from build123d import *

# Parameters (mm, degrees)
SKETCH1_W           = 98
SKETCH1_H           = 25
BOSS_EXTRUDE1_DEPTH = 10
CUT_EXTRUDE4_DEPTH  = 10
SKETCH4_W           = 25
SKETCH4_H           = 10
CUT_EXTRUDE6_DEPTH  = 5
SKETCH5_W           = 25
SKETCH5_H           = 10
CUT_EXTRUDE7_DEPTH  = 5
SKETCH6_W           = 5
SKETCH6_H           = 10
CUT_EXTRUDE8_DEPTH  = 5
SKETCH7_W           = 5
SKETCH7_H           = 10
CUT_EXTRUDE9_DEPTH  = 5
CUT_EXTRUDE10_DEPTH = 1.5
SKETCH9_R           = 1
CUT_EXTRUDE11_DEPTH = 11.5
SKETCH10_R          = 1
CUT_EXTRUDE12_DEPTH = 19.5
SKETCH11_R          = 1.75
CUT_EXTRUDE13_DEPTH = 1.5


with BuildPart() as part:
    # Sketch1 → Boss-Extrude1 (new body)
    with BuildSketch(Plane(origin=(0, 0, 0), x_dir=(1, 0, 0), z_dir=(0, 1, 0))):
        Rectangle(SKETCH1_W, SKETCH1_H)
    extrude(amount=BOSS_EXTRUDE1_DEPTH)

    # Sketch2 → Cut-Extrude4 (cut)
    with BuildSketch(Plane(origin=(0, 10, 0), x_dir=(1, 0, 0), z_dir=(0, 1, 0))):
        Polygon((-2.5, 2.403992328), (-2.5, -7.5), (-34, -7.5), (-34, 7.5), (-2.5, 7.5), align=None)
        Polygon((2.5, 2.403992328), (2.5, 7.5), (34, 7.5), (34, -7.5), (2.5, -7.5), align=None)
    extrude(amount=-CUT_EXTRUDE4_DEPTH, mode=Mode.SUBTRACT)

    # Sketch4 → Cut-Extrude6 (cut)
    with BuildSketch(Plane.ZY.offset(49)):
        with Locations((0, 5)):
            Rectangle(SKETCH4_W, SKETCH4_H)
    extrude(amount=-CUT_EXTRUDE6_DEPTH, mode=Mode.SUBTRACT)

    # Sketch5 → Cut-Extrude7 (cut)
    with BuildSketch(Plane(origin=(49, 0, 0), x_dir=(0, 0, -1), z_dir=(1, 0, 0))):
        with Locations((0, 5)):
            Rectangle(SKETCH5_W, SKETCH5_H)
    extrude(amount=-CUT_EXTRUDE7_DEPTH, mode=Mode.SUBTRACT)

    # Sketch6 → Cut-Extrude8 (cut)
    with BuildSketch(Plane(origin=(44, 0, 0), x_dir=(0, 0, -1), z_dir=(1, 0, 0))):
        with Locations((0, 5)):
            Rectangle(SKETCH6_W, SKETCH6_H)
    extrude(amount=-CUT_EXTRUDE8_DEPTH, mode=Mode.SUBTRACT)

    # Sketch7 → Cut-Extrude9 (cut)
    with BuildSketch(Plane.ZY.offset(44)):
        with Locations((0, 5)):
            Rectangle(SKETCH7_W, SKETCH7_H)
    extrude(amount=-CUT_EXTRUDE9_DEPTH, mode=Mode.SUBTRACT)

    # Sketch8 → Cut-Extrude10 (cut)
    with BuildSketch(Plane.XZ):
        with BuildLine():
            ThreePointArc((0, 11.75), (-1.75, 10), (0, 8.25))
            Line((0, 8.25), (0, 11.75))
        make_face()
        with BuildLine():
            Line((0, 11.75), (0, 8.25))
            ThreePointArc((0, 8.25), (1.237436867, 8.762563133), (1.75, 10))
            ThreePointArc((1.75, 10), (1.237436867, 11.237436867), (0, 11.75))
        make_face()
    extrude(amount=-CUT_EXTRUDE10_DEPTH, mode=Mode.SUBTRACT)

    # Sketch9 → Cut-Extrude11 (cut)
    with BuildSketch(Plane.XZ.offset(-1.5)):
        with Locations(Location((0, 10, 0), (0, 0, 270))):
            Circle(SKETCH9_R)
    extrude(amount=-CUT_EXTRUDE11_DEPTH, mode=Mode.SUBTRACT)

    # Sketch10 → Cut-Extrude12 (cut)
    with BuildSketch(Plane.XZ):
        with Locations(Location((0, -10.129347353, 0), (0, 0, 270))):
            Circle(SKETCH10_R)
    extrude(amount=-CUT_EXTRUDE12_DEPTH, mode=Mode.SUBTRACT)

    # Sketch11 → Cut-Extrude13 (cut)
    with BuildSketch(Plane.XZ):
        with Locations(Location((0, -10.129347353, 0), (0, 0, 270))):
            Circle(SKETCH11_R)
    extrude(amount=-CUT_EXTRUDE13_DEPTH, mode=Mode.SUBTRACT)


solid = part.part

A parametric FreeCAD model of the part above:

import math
import FreeCAD as App
import Part
import Sketcher

doc = App.newDocument("Part")
params = doc.addObject("Spreadsheet::Sheet", "Params")
for row, (alias, value) in enumerate([
    ("sketch1_width", "98 mm"),
    ("sketch1_height", "25 mm"),
    ("pad1_length", "10 mm"),
    ("sketch2_height", "15 mm"),
    ("sketch2_width", "31.5 mm"),
    ("pocket1_length", "10 mm"),
    ("sketch3_width", "10 mm"),
    ("sketch3_height", "25 mm"),
    ("pocket2_length", "5 mm"),
    ("sketch4_width", "10 mm"),
    ("sketch4_height", "25 mm"),
    ("pocket3_length", "5 mm"),
    ("sketch5_width", "10 mm"),
    ("sketch5_height", "5 mm"),
    ("pocket4_length", "5 mm"),
    ("sketch6_width", "10 mm"),
    ("sketch6_height", "5 mm"),
    ("pocket5_length", "5 mm"),
    ("sketch7_radius", "1.75 mm"),
    ("pocket6_length", "1.5 mm"),
    ("sketch8_diameter", "2 mm"),
    ("pocket7_length", "11.5 mm"),
    ("sketch9_diameter", "2 mm"),
    ("pocket8_length", "19.5 mm"),
    ("sketch10_diameter", "3.5 mm"),
    ("pocket9_length", "1.5 mm"),
], start=1):
    params.set(f"A{row}", alias)
    params.set(f"B{row}", "=" + value)
    params.setAlias(f"B{row}", alias)

body = doc.addObject("PartDesign::Body", "Body")

# Sketch on XZ plane
sketch1 = body.newObject("Sketcher::SketchObject", "Sketch")
sketch1.AttachmentSupport = (doc.getObject("XZ_Plane"), [""])
sketch1.MapMode = "FlatFace"
sketch1.addGeometry([
    Part.LineSegment(App.Vector(-49, -12, 0), App.Vector(-49, 12, 0)),
    Part.LineSegment(App.Vector(-49, 12, 0), App.Vector(49, 12, 0)),
    Part.LineSegment(App.Vector(49, 12, 0), App.Vector(49, -12, 0)),
    Part.LineSegment(App.Vector(49, -12, 0), App.Vector(-49, -12, 0)),
], False)
sketch1.addConstraint([
    Sketcher.Constraint("Coincident", 0, 2, 1, 1),
    Sketcher.Constraint("Coincident", 1, 2, 2, 1),
    Sketcher.Constraint("Coincident", 2, 2, 3, 1),
    Sketcher.Constraint("Coincident", 3, 2, 0, 1),
    Sketcher.Constraint("Vertical", 0),
    Sketcher.Constraint("Horizontal", 1),
    Sketcher.Constraint("Vertical", 2),
    Sketcher.Constraint("Horizontal", 3),
    Sketcher.Constraint("Symmetric", 0, 2, 2, 2, -1, 1),
    Sketcher.Constraint("DistanceX", 1, 1, 1, 2, 98.0),
    Sketcher.Constraint("DistanceY", 0, 1, 0, 2, 25.0),
])
sketch1.setExpression("Constraints[9]", "Params.sketch1_width")
sketch1.setExpression("Constraints[10]", "Params.sketch1_height")
pad1 = body.newObject("PartDesign::Pad", "Pad")
pad1.Profile = sketch1
pad1.setExpression("Length", "Params.pad1_length")
pad1.Reversed = True

# Sketch on XZ plane
sketch2 = body.newObject("Sketcher::SketchObject", "Sketch001")
sketch2.AttachmentSupport = (doc.getObject("XZ_Plane"), [""])
sketch2.MapMode = "FlatFace"
sketch2.AttachmentOffset = App.Placement(App.Vector(0, 0, -10), App.Rotation())
sketch2.addGeometry([
    Part.LineSegment(App.Vector(-2, 8, 0), App.Vector(-2, -8, 0)),  # 0
    Part.LineSegment(App.Vector(-2, -8, 0), App.Vector(-34, -8, 0)),  # 1
    Part.LineSegment(App.Vector(-34, -8, 0), App.Vector(-34, 8, 0)),  # 2
    Part.LineSegment(App.Vector(-34, 8, 0), App.Vector(-2, 8, 0)),  # 3
    Part.LineSegment(App.Vector(2, -8, 0), App.Vector(2, 8, 0)),  # 4
    Part.LineSegment(App.Vector(2, 8, 0), App.Vector(34, 8, 0)),  # 5
    Part.LineSegment(App.Vector(34, 8, 0), App.Vector(34, -8, 0)),  # 6
    Part.LineSegment(App.Vector(34, -8, 0), App.Vector(2, -8, 0)),  # 7
], False)
sketch2.addConstraint([
    Sketcher.Constraint("Coincident", 0, 2, 1, 1),
    Sketcher.Constraint("Coincident", 1, 2, 2, 1),
    Sketcher.Constraint("Coincident", 2, 2, 3, 1),
    Sketcher.Constraint("Coincident", 3, 2, 0, 1),
    Sketcher.Constraint("Coincident", 4, 2, 5, 1),
    Sketcher.Constraint("Coincident", 5, 2, 6, 1),
    Sketcher.Constraint("Coincident", 6, 2, 7, 1),
    Sketcher.Constraint("Coincident", 7, 2, 4, 1),
    Sketcher.Constraint("Vertical", 0),
    Sketcher.Constraint("Horizontal", 1),
    Sketcher.Constraint("Vertical", 2),
    Sketcher.Constraint("Horizontal", 3),
    Sketcher.Constraint("Vertical", 4),
    Sketcher.Constraint("Horizontal", 5),
    Sketcher.Constraint("Vertical", 6),
    Sketcher.Constraint("Horizontal", 7),
    Sketcher.Constraint("Symmetric", 0, 2, 4, 2, -1, 1),
    Sketcher.Constraint("Symmetric", 2, 2, 6, 2, -1, 1),
    Sketcher.Constraint("Horizontal", 3, 2, 4, 2),
    Sketcher.Constraint("DistanceY", 0, 2, 0, 1, 15.0),
    Sketcher.Constraint("DistanceX", 1, 2, 1, 1, 31.5),
    Sketcher.Constraint("DistanceX", 1, 2, -1, 1, 34.0),
])
sketch2.setExpression("Constraints[19]", "Params.sketch2_height")
sketch2.setExpression("Constraints[20]", "Params.sketch2_width")
pocket1 = body.newObject("PartDesign::Pocket", "Pocket")
pocket1.Profile = sketch2
pocket1.setExpression("Length", "Params.pocket1_length")
pocket1.Reversed = True

# Sketch on YZ plane
sketch3 = body.newObject("Sketcher::SketchObject", "Sketch002")
sketch3.AttachmentSupport = (doc.getObject("YZ_Plane"), [""])
sketch3.MapMode = "FlatFace"
sketch3.AttachmentOffset = App.Placement(App.Vector(0, 0, -49), App.Rotation())
sketch3.addGeometry([
    Part.LineSegment(App.Vector(10, -12, 0), App.Vector(0, -12, 0)),
    Part.LineSegment(App.Vector(0, -12, 0), App.Vector(0, 12, 0)),
    Part.LineSegment(App.Vector(0, 12, 0), App.Vector(10, 12, 0)),
    Part.LineSegment(App.Vector(10, 12, 0), App.Vector(10, -12, 0)),
], False)
sketch3.addConstraint([
    Sketcher.Constraint("Coincident", 0, 2, 1, 1),
    Sketcher.Constraint("Coincident", 1, 2, 2, 1),
    Sketcher.Constraint("Coincident", 2, 2, 3, 1),
    Sketcher.Constraint("Coincident", 3, 2, 0, 1),
    Sketcher.Constraint("Horizontal", 0),
    Sketcher.Constraint("Vertical", 1),
    Sketcher.Constraint("Horizontal", 2),
    Sketcher.Constraint("Vertical", 3),
    Sketcher.Constraint("Symmetric", 0, 2, 1, 2, -1, 1),
    Sketcher.Constraint("DistanceX", 0, 2, 0, 1, 10.0),
    Sketcher.Constraint("DistanceY", 1, 1, 1, 2, 25.0),
])
sketch3.setExpression("Constraints[9]", "Params.sketch3_width")
sketch3.setExpression("Constraints[10]", "Params.sketch3_height")
pocket2 = body.newObject("PartDesign::Pocket", "Pocket001")
pocket2.Profile = sketch3
pocket2.setExpression("Length", "Params.pocket2_length")
pocket2.Reversed = True

# Sketch on YZ plane
sketch4 = body.newObject("Sketcher::SketchObject", "Sketch003")
sketch4.AttachmentSupport = (doc.getObject("YZ_Plane"), [""])
sketch4.MapMode = "FlatFace"
sketch4.AttachmentOffset = App.Placement(App.Vector(0, 0, 49), App.Rotation())
sketch4.addGeometry([
    Part.LineSegment(App.Vector(10, 12, 0), App.Vector(0, 12, 0)),
    Part.LineSegment(App.Vector(0, 12, 0), App.Vector(0, -12, 0)),
    Part.LineSegment(App.Vector(0, -12, 0), App.Vector(10, -12, 0)),
    Part.LineSegment(App.Vector(10, -12, 0), App.Vector(10, 12, 0)),
], False)
sketch4.addConstraint([
    Sketcher.Constraint("Coincident", 0, 2, 1, 1),
    Sketcher.Constraint("Coincident", 1, 2, 2, 1),
    Sketcher.Constraint("Coincident", 2, 2, 3, 1),
    Sketcher.Constraint("Coincident", 3, 2, 0, 1),
    Sketcher.Constraint("Horizontal", 0),
    Sketcher.Constraint("Vertical", 1),
    Sketcher.Constraint("Horizontal", 2),
    Sketcher.Constraint("Vertical", 3),
    Sketcher.Constraint("Symmetric", 0, 2, 1, 2, -1, 1),
    Sketcher.Constraint("DistanceX", 0, 2, 0, 1, 10.0),
    Sketcher.Constraint("DistanceY", 1, 2, 1, 1, 25.0),
])
sketch4.setExpression("Constraints[9]", "Params.sketch4_width")
sketch4.setExpression("Constraints[10]", "Params.sketch4_height")
pocket3 = body.newObject("PartDesign::Pocket", "Pocket002")
pocket3.Profile = sketch4
pocket3.setExpression("Length", "Params.pocket3_length")

# Sketch on YZ plane
sketch5 = body.newObject("Sketcher::SketchObject", "Sketch004")
sketch5.AttachmentSupport = (doc.getObject("YZ_Plane"), [""])
sketch5.MapMode = "FlatFace"
sketch5.AttachmentOffset = App.Placement(App.Vector(0, 0, 44), App.Rotation())
sketch5.addGeometry([
    Part.LineSegment(App.Vector(10, 2, 0), App.Vector(0, 2, 0)),
    Part.LineSegment(App.Vector(0, 2, 0), App.Vector(0, -2, 0)),
    Part.LineSegment(App.Vector(0, -2, 0), App.Vector(10, -2, 0)),
    Part.LineSegment(App.Vector(10, -2, 0), App.Vector(10, 2, 0)),
], False)
sketch5.addConstraint([
    Sketcher.Constraint("Coincident", 0, 2, 1, 1),
    Sketcher.Constraint("Coincident", 1, 2, 2, 1),
    Sketcher.Constraint("Coincident", 2, 2, 3, 1),
    Sketcher.Constraint("Coincident", 3, 2, 0, 1),
    Sketcher.Constraint("Horizontal", 0),
    Sketcher.Constraint("Vertical", 1),
    Sketcher.Constraint("Horizontal", 2),
    Sketcher.Constraint("Vertical", 3),
    Sketcher.Constraint("Symmetric", 0, 2, 1, 2, -1, 1),
    Sketcher.Constraint("DistanceX", 0, 2, 0, 1, 10.0),
    Sketcher.Constraint("DistanceY", 1, 2, 1, 1, 5.0),
])
sketch5.setExpression("Constraints[9]", "Params.sketch5_width")
sketch5.setExpression("Constraints[10]", "Params.sketch5_height")
pocket4 = body.newObject("PartDesign::Pocket", "Pocket003")
pocket4.Profile = sketch5
pocket4.setExpression("Length", "Params.pocket4_length")

# Sketch on YZ plane
sketch6 = body.newObject("Sketcher::SketchObject", "Sketch005")
sketch6.AttachmentSupport = (doc.getObject("YZ_Plane"), [""])
sketch6.MapMode = "FlatFace"
sketch6.AttachmentOffset = App.Placement(App.Vector(0, 0, -44), App.Rotation())
sketch6.addGeometry([
    Part.LineSegment(App.Vector(10, -2, 0), App.Vector(0, -2, 0)),
    Part.LineSegment(App.Vector(0, -2, 0), App.Vector(0, 2, 0)),
    Part.LineSegment(App.Vector(0, 2, 0), App.Vector(10, 2, 0)),
    Part.LineSegment(App.Vector(10, 2, 0), App.Vector(10, -2, 0)),
], False)
sketch6.addConstraint([
    Sketcher.Constraint("Coincident", 0, 2, 1, 1),
    Sketcher.Constraint("Coincident", 1, 2, 2, 1),
    Sketcher.Constraint("Coincident", 2, 2, 3, 1),
    Sketcher.Constraint("Coincident", 3, 2, 0, 1),
    Sketcher.Constraint("Horizontal", 0),
    Sketcher.Constraint("Vertical", 1),
    Sketcher.Constraint("Horizontal", 2),
    Sketcher.Constraint("Vertical", 3),
    Sketcher.Constraint("Symmetric", 0, 2, 1, 2, -1, 1),
    Sketcher.Constraint("DistanceX", 0, 2, 0, 1, 10.0),
    Sketcher.Constraint("DistanceY", 1, 1, 1, 2, 5.0),
])
sketch6.setExpression("Constraints[9]", "Params.sketch6_width")
sketch6.setExpression("Constraints[10]", "Params.sketch6_height")
pocket5 = body.newObject("PartDesign::Pocket", "Pocket004")
pocket5.Profile = sketch6
pocket5.setExpression("Length", "Params.pocket5_length")
pocket5.Reversed = True

# Sketch on XZ plane
sketch7 = body.newObject("Sketcher::SketchObject", "Sketch006")
sketch7.AttachmentSupport = (doc.getObject("XZ_Plane"), [""])
sketch7.MapMode = "FlatFace"
sketch7.addGeometry([
    Part.ArcOfCircle(Part.Circle(App.Vector(0, 10, 0), App.Vector(0, 0, 1), 1.8), math.radians(90), math.radians(270)),
    Part.ArcOfCircle(Part.Circle(App.Vector(0, 10, 0), App.Vector(0, 0, 1), 1.8), math.radians(-90), math.radians(0)),
    Part.ArcOfCircle(Part.Circle(App.Vector(0, 10, 0), App.Vector(0, 0, 1), 1.8), math.radians(0), math.radians(90)),
], False)
sketch7.addConstraint([
    Sketcher.Constraint("Tangent", 0, 2, 1, 1),
    Sketcher.Constraint("Tangent", 1, 2, 2, 1),
    Sketcher.Constraint("Tangent", 2, 2, 0, 1),
    Sketcher.Constraint("PointOnObject", 0, 3, -2),
    Sketcher.Constraint("PointOnObject", 0, 2, -2),
    Sketcher.Constraint("PointOnObject", 2, 2, -2),
    Sketcher.Constraint("Horizontal", 2, 3, 1, 2),
    Sketcher.Constraint("Radius", 0, 1.75),
    Sketcher.Constraint("DistanceY", -1, 1, 0, 3, 10.0),
])
sketch7.setExpression("Constraints[7]", "Params.sketch7_radius")
pocket6 = body.newObject("PartDesign::Pocket", "Pocket005")
pocket6.Profile = sketch7
pocket6.setExpression("Length", "Params.pocket6_length")

# Sketch on XZ plane
sketch8 = body.newObject("Sketcher::SketchObject", "Sketch007")
sketch8.AttachmentSupport = (doc.getObject("XZ_Plane"), [""])
sketch8.MapMode = "FlatFace"
sketch8.AttachmentOffset = App.Placement(App.Vector(0, 0, -1.5), App.Rotation())
sketch8.addGeometry(Part.Circle(App.Vector(0, 10, 0), App.Vector(0, 0, 1), 1), False)
sketch8.addConstraint([
    Sketcher.Constraint("PointOnObject", 0, 3, -2),
    Sketcher.Constraint("Diameter", 0, 2.0),
    Sketcher.Constraint("DistanceY", -1, 1, 0, 3, 10.0),
])
sketch8.setExpression("Constraints[1]", "Params.sketch8_diameter")
pocket7 = body.newObject("PartDesign::Pocket", "Pocket006")
pocket7.Profile = sketch8
pocket7.setExpression("Length", "Params.pocket7_length")

# Sketch on XZ plane
sketch9 = body.newObject("Sketcher::SketchObject", "Sketch008")
sketch9.AttachmentSupport = (doc.getObject("XZ_Plane"), [""])
sketch9.MapMode = "FlatFace"
sketch9.addGeometry(Part.Circle(App.Vector(0, -10.1, 0), App.Vector(0, 0, 1), 1), False)
sketch9.addConstraint([
    Sketcher.Constraint("PointOnObject", 0, 3, -2),
    Sketcher.Constraint("Diameter", 0, 2.0),
    Sketcher.Constraint("DistanceY", 0, 3, -1, 1, 10.129347),
])
sketch9.setExpression("Constraints[1]", "Params.sketch9_diameter")
pocket8 = body.newObject("PartDesign::Pocket", "Pocket007")
pocket8.Profile = sketch9
pocket8.setExpression("Length", "Params.pocket8_length")

# Sketch on XZ plane
sketch10 = body.newObject("Sketcher::SketchObject", "Sketch009")
sketch10.AttachmentSupport = (doc.getObject("XZ_Plane"), [""])
sketch10.MapMode = "FlatFace"
sketch10.addGeometry(Part.Circle(App.Vector(0, -10.1, 0), App.Vector(0, 0, 1), 1.8), False)
sketch10.addConstraint([
    Sketcher.Constraint("PointOnObject", 0, 3, -2),
    Sketcher.Constraint("Diameter", 0, 3.5),
    Sketcher.Constraint("DistanceY", 0, 3, -1, 1, 10.129347),
])
sketch10.setExpression("Constraints[1]", "Params.sketch10_diameter")
pocket9 = body.newObject("PartDesign::Pocket", "Pocket008")
pocket9.Profile = sketch10
pocket9.setExpression("Length", "Params.pocket9_length")

doc.recompute()
